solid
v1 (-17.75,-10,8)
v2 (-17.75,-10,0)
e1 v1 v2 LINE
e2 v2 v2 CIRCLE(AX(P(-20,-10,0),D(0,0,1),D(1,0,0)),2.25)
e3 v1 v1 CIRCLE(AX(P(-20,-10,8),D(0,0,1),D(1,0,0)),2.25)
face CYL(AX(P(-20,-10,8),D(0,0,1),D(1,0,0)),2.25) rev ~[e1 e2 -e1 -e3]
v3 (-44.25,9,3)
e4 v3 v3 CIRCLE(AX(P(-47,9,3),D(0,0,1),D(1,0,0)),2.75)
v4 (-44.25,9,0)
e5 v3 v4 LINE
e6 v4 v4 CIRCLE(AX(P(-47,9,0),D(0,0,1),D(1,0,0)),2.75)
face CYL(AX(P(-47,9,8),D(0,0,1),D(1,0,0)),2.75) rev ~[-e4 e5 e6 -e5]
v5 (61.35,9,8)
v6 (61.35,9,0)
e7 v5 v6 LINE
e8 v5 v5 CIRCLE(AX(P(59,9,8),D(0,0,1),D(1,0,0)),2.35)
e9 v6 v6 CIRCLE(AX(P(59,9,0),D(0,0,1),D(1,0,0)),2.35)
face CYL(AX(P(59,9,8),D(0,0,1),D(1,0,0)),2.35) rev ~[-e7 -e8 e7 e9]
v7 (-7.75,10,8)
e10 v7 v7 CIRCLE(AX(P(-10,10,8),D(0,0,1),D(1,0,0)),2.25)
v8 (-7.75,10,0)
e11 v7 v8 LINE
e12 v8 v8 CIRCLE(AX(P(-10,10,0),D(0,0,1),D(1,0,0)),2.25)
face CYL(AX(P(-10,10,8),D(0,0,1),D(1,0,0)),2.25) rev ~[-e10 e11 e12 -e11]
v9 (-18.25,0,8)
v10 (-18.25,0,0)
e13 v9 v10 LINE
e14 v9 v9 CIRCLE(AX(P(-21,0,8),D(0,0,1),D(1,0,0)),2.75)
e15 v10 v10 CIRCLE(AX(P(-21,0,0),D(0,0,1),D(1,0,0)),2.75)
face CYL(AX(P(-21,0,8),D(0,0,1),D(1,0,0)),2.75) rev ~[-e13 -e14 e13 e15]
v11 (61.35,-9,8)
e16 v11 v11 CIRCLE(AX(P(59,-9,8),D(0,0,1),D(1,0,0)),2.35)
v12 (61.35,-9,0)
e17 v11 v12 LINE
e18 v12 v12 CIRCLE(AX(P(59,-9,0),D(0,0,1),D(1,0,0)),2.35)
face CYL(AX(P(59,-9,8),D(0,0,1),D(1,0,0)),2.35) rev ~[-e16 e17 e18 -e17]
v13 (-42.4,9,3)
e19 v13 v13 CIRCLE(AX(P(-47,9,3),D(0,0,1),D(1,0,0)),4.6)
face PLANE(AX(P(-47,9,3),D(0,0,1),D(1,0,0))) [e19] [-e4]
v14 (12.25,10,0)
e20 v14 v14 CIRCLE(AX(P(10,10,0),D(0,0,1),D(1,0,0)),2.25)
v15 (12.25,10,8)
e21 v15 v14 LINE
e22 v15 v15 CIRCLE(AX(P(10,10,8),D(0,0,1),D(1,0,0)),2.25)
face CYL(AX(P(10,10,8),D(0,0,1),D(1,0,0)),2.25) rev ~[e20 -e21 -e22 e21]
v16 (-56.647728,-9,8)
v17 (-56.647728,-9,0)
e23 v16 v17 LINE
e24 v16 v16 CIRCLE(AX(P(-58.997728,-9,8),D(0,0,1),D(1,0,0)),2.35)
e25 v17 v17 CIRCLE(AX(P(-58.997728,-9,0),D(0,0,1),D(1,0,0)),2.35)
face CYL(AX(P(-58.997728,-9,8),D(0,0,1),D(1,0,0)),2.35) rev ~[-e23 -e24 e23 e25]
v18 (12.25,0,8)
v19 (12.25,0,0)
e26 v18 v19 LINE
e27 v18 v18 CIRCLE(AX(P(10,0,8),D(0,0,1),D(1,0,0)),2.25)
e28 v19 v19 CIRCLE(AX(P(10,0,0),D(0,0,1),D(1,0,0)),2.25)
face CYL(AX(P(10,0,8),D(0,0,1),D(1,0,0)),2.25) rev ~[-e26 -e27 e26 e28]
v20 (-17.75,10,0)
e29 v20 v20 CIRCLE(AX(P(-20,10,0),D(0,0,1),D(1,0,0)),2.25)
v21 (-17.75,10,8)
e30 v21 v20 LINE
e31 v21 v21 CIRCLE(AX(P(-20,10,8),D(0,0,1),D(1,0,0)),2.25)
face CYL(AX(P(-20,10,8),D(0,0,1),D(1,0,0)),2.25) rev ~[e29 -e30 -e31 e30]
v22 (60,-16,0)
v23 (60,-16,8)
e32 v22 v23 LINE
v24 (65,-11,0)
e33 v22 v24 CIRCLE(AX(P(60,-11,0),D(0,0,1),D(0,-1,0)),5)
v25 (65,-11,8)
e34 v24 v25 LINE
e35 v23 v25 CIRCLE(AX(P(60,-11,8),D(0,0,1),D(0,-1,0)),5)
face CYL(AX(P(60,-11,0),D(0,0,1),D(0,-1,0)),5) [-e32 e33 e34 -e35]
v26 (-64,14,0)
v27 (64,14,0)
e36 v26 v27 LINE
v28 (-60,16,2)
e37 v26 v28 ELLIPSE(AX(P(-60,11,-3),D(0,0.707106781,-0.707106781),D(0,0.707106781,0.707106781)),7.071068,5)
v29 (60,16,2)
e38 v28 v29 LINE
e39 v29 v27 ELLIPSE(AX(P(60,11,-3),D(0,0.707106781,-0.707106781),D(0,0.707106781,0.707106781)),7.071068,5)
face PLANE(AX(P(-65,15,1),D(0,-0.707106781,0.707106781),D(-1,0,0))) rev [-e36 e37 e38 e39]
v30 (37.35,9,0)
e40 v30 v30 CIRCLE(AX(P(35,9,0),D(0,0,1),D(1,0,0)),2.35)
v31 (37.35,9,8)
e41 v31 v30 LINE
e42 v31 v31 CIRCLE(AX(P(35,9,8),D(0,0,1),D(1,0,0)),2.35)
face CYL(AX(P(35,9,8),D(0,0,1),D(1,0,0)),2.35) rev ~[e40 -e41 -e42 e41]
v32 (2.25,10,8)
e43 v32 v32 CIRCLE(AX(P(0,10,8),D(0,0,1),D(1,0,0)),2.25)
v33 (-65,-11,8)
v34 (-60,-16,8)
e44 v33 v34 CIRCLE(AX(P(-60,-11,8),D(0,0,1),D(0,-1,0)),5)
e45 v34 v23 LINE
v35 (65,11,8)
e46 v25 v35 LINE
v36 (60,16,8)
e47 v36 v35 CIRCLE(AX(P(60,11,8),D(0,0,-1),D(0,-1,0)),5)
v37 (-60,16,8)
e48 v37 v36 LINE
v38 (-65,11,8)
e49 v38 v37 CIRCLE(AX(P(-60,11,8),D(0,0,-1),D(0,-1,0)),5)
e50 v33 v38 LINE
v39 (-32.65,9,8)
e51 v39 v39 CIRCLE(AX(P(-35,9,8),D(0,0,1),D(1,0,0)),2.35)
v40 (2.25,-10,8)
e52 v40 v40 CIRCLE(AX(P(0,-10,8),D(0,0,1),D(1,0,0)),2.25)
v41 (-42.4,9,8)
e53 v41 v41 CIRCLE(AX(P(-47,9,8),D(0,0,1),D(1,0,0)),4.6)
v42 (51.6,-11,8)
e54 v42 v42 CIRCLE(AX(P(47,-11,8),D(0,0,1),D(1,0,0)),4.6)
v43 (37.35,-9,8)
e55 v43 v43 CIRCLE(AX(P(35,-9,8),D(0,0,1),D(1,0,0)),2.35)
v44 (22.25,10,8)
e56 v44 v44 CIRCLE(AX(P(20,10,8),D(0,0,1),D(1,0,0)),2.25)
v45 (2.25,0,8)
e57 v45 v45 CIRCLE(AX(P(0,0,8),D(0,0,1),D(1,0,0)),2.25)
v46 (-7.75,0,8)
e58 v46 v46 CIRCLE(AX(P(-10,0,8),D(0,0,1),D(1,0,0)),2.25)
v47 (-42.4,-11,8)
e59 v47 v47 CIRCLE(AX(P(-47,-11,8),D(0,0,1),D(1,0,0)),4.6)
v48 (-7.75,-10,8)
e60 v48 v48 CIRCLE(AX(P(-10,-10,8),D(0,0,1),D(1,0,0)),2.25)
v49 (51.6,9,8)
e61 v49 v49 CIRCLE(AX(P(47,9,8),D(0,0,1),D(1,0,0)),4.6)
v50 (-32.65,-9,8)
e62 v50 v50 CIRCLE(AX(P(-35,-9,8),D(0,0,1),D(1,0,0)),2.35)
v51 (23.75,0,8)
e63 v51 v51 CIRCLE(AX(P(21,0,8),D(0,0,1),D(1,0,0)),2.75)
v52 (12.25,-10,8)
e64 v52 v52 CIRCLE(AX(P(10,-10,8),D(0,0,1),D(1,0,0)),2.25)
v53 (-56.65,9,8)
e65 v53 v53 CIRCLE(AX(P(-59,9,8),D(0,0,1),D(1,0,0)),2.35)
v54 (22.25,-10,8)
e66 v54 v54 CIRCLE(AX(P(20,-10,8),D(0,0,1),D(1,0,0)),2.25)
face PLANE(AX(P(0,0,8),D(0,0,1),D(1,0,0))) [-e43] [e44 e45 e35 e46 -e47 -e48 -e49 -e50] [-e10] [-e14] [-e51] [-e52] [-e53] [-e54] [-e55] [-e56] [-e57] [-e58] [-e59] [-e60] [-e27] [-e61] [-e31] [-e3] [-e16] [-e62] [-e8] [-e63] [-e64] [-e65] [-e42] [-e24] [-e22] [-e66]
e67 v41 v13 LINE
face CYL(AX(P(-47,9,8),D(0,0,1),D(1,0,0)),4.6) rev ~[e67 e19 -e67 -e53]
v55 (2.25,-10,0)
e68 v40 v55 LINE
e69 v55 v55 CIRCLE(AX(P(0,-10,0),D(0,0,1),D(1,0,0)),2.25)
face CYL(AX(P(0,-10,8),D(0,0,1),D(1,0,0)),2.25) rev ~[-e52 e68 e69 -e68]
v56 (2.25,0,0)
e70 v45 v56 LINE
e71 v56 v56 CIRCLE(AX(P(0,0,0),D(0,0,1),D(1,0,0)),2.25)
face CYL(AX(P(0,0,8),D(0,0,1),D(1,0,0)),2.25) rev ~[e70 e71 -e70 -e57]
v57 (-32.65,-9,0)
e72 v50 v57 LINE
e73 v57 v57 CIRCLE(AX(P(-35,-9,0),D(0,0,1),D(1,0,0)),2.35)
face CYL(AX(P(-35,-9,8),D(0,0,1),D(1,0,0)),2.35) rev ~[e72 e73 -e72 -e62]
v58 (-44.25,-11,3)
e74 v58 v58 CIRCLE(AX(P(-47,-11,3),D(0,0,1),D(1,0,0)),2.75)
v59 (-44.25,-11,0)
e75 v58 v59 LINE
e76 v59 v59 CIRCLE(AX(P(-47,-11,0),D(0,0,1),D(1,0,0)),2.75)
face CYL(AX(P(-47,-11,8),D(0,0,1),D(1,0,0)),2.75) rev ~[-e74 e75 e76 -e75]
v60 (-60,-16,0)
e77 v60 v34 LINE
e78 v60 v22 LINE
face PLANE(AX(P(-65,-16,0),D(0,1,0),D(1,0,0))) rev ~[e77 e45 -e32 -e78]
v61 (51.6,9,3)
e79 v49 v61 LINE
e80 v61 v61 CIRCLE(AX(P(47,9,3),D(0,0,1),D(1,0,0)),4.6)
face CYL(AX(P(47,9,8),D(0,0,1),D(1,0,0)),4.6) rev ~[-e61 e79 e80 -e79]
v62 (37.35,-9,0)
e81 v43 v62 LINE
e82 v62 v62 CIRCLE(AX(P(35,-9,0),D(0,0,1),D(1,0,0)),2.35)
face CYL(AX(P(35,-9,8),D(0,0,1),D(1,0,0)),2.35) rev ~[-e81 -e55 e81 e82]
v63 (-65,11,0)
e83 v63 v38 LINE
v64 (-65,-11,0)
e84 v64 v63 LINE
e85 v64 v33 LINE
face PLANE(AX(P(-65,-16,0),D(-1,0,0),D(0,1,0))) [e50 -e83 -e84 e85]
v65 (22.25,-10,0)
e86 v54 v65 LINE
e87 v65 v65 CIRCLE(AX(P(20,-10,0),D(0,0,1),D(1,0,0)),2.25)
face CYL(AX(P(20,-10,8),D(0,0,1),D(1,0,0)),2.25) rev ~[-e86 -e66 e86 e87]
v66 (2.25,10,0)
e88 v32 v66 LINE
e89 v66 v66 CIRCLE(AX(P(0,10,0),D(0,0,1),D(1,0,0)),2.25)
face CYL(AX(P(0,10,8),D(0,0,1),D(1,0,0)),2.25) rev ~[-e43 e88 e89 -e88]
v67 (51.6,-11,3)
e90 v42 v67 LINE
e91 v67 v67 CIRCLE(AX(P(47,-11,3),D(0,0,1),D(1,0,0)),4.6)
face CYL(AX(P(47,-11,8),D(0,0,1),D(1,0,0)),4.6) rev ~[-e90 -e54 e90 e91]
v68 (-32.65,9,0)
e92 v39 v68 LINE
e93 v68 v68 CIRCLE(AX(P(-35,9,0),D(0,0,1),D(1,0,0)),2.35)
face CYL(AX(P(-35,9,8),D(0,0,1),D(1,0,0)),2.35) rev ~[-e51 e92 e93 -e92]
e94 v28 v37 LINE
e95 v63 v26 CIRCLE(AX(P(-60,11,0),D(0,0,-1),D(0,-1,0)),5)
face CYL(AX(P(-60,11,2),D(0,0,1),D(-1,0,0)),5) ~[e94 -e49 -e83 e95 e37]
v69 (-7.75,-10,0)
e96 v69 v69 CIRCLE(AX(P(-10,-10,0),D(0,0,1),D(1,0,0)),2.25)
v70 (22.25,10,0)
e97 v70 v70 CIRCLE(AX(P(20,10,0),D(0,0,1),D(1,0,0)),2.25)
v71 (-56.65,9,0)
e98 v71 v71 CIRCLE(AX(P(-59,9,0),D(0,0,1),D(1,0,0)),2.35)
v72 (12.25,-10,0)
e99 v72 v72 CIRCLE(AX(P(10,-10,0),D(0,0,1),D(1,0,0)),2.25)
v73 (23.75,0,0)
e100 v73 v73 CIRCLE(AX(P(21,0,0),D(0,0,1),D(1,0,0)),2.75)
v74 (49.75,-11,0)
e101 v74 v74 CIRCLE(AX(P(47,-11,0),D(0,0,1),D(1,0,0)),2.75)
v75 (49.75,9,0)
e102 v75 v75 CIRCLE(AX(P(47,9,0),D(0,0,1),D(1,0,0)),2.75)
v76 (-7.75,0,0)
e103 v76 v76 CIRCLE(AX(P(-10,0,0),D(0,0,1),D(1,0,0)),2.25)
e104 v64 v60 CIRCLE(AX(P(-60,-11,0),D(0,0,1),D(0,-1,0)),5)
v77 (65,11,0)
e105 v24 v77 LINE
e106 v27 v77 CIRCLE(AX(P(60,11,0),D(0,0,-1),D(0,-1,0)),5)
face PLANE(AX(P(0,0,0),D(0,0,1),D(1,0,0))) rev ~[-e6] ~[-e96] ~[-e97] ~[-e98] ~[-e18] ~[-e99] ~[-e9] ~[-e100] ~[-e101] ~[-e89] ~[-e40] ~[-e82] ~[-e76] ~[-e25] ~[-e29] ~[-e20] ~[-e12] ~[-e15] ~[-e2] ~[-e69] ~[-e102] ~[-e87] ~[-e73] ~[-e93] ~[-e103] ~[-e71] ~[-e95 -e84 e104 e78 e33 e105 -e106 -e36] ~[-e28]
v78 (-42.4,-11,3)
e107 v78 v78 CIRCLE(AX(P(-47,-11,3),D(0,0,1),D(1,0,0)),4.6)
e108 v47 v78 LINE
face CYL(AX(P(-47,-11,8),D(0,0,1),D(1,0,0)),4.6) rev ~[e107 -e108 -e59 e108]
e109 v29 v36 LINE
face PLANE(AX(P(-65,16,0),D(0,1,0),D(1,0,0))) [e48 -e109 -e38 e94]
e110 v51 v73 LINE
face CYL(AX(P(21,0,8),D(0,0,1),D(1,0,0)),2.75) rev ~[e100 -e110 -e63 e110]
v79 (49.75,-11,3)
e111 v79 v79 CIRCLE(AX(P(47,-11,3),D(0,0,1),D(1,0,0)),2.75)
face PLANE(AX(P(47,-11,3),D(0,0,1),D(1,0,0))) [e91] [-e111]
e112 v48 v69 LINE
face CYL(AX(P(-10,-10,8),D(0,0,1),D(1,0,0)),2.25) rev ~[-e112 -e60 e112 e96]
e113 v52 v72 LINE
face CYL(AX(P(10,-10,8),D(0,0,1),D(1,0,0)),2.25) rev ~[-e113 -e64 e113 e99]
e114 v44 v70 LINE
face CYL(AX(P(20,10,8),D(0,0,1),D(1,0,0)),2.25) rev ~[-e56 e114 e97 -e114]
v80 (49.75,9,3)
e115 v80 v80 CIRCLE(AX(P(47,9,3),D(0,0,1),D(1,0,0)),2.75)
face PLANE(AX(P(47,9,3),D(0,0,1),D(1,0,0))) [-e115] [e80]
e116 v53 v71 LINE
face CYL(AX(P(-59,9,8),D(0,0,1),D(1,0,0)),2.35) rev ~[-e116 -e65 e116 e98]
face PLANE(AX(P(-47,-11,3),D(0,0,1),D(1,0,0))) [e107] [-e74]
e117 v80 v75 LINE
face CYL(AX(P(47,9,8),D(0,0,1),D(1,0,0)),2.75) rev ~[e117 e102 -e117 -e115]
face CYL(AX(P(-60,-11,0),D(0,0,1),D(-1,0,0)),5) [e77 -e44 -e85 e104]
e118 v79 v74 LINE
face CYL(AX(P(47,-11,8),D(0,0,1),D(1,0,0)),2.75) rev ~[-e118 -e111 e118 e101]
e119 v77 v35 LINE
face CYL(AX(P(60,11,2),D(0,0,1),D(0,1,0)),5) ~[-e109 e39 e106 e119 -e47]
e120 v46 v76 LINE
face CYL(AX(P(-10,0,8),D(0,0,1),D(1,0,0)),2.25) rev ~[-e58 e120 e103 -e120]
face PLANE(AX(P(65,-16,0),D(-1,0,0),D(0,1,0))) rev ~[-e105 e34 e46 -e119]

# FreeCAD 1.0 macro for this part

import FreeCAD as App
import Part
import Sketcher
from FreeCAD import Vector
Q = App.Units.Quantity


def edges_at(feature, points):
    """Names of the edges that pass closest to the given points."""
    edges = feature.Shape.Edges
    near = lambda p: min(range(len(edges)), key=lambda i: edges[i].distToShape(Part.Vertex(*p))[0])
    return sorted({f"Edge{near(p) + 1}" for p in points})

doc = App.newDocument("Part")
body = doc.addObject("PartDesign::Body", "Body")

# Sketch on XY plane
sketch1 = body.newObject("Sketcher::SketchObject", "Sketch")
sketch1.AttachmentSupport = (doc.getObject("XY_Plane"), [""])
sketch1.MapMode = "FlatFace"
sketch1.addGeometry(Part.LineSegment(Vector(-65, 16, 0), Vector(-65, -16, 0)), False)
sketch1.addGeometry(Part.LineSegment(Vector(-65, -16, 0), Vector(65, -16, 0)), False)
sketch1.addGeometry(Part.LineSegment(Vector(65, -16, 0), Vector(65, 16, 0)), False)
sketch1.addGeometry(Part.LineSegment(Vector(65, 16, 0), Vector(-65, 16, 0)), False)
sketch1.addConstraint(Sketcher.Constraint("Coincident", 0, 2, 1, 1))
sketch1.addConstraint(Sketcher.Constraint("Coincident", 1, 2, 2, 1))
sketch1.addConstraint(Sketcher.Constraint("Coincident", 2, 2, 3, 1))
sketch1.addConstraint(Sketcher.Constraint("Coincident", 3, 2, 0, 1))
sketch1.addConstraint(Sketcher.Constraint("Vertical", 0))
sketch1.addConstraint(Sketcher.Constraint("Horizontal", 1))
sketch1.addConstraint(Sketcher.Constraint("Vertical", 2))
sketch1.addConstraint(Sketcher.Constraint("Horizontal", 3))
sketch1.addConstraint(Sketcher.Constraint("Symmetric", 0, 2, 2, 2, -1, 1))
sketch1.addConstraint(Sketcher.Constraint("DistanceX", 1, 1, 1, 2, Q("130 mm")))
sketch1.addConstraint(Sketcher.Constraint("DistanceY", 0, 2, 0, 1, Q("32 mm")))
pad1 = body.newObject("PartDesign::Pad", "Pad")
pad1.Profile = sketch1
pad1.Length = 8

# Sketch on XY plane
sketch2 = body.newObject("Sketcher::SketchObject", "Sketch001")
sketch2.AttachmentSupport = (doc.getObject("XY_Plane"), [""])
sketch2.MapMode = "FlatFace"
sketch2.AttachmentOffset = App.Placement(Vector(0, 0, 8), App.Rotation())
sketch2.addGeometry(Part.Circle(Vector(-35, 9, 0), Vector(0, 0, 1), 2.35), False)
sketch2.addGeometry(Part.Circle(Vector(-58.997728, -9, 0), Vector(0, 0, 1), 2.35), False)
sketch2.addGeometry(Part.Circle(Vector(-59, 9, 0), Vector(0, 0, 1), 2.35), False)
sketch2.addGeometry(Part.Circle(Vector(35, 9, 0), Vector(0, 0, 1), 2.35), False)
sketch2.addGeometry(Part.Circle(Vector(59, -9, 0), Vector(0, 0, 1), 2.35), False)
sketch2.addGeometry(Part.Circle(Vector(59, 9, 0), Vector(0, 0, 1), 2.35), False)
sketch2.addGeometry(Part.Circle(Vector(-47, 9, 0), Vector(0, 0, 1), 2.75), False)
sketch2.addGeometry(Part.Circle(Vector(-47, -11, 0), Vector(0, 0, 1), 2.75), False)
sketch2.addGeometry(Part.Circle(Vector(47, 9, 0), Vector(0, 0, 1), 2.75), False)
sketch2.addGeometry(Part.Circle(Vector(47, -11, 0), Vector(0, 0, 1), 2.75), False)
sketch2.addGeometry(Part.Circle(Vector(-21, 0, 0), Vector(0, 0, 1), 2.75), False)
sketch2.addGeometry(Part.Circle(Vector(21, 0, 0), Vector(0, 0, 1), 2.75), False)
sketch2.addGeometry(Part.Circle(Vector(-35, -9, 0), Vector(0, 0, 1), 2.35), False)
sketch2.addGeometry(Part.Circle(Vector(35, -9, 0), Vector(0, 0, 1), 2.35), False)
sketch2.addConstraint(Sketcher.Constraint("Equal", 0, 1))
sketch2.addConstraint(Sketcher.Constraint("Equal", 1, 2))
sketch2.addConstraint(Sketcher.Constraint("Equal", 2, 3))
sketch2.addConstraint(Sketcher.Constraint("Equal", 3, 4))
sketch2.addConstraint(Sketcher.Constraint("Equal", 4, 5))
sketch2.addConstraint(Sketcher.Constraint("Equal", 6, 7))
sketch2.addConstraint(Sketcher.Constraint("Equal", 7, 8))
sketch2.addConstraint(Sketcher.Constraint("Equal", 8, 9))
sketch2.addConstraint(Sketcher.Constraint("Equal", 9, 10))
sketch2.addConstraint(Sketcher.Constraint("Equal", 10, 11))
sketch2.addConstraint(Sketcher.Constraint("Equal", 5, 12))
sketch2.addConstraint(Sketcher.Constraint("Equal", 12, 13))
sketch2.addConstraint(Sketcher.Constraint("Symmetric", 2, 3, 4, 3, -1, 1))
sketch2.addConstraint(Sketcher.Constraint("Symmetric", 10, 3, 11, 3, -1, 1))
sketch2.addConstraint(Sketcher.Constraint("Symmetric", 3, 3, 12, 3, -1, 1))
sketch2.addConstraint(Sketcher.Constraint("Symmetric", 0, 3, 13, 3, -1, 1))
sketch2.addConstraint(Sketcher.Constraint("Symmetric", 0, 3, 3, 3, -2))
sketch2.addConstraint(Sketcher.Constraint("Symmetric", 2, 3, 5, 3, -2))
sketch2.addConstraint(Sketcher.Constraint("Symmetric", 6, 3, 8, 3, -2))
sketch2.addConstraint(Sketcher.Constraint("Symmetric", 7, 3, 9, 3, -2))
sketch2.addConstraint(Sketcher.Constraint("PointOnObject", 10, 3, -1))
sketch2.addConstraint(Sketcher.Constraint("Horizontal", 0, 3, 2, 3))
sketch2.addConstraint(Sketcher.Constraint("Horizontal", 1, 3, 4, 3))
sketch2.addConstraint(Sketcher.Constraint("Horizontal", 5, 3, 6, 3))
sketch2.addConstraint(Sketcher.Constraint("Vertical", 6, 3, 7, 3))
sketch2.addConstraint(Sketcher.Constraint("Diameter", 0, Q("4.7 mm")))
sketch2.addConstraint(Sketcher.Constraint("Diameter", 6, Q("5.5 mm")))
sketch2.addConstraint(Sketcher.Constraint("DistanceX", 0, 3, -1, 1, Q("35 mm")))
sketch2.addConstraint(Sketcher.Constraint("DistanceY", -1, 1, 0, 3, Q("9 mm")))
sketch2.addConstraint(Sketcher.Constraint("DistanceX", 2, 3, -1, 1, Q("59 mm")))
sketch2.addConstraint(Sketcher.Constraint("DistanceX", 6, 3, -1, 1, Q("47 mm")))
sketch2.addConstraint(Sketcher.Constraint("DistanceY", 7, 3, -1, 1, Q("11 mm")))
sketch2.addConstraint(Sketcher.Constraint("DistanceX", 10, 3, -1, 1, Q("21 mm")))
sketch2.addConstraint(Sketcher.Constraint("DistanceX", 1, 3, -1, 1, Q("58.997728 mm")))
pocket1 = body.newObject("PartDesign::Pocket", "Pocket")
pocket1.Profile = sketch2
pocket1.Type = "ThroughAll"

# Sketch on XY plane
sketch3 = body.newObject("Sketcher::SketchObject", "Sketch002")
sketch3.AttachmentSupport = (doc.getObject("XY_Plane"), [""])
sketch3.MapMode = "FlatFace"
sketch3.AttachmentOffset = App.Placement(Vector(0, 0, 8), App.Rotation())
sketch3.addGeometry(Part.Circle(Vector(-47, 9, 0), Vector(0, 0, 1), 4.6), False)
sketch3.addGeometry(Part.Circle(Vector(47, -11, 0), Vector(0, 0, 1), 4.6), False)
sketch3.addGeometry(Part.Circle(Vector(47, 9, 0), Vector(0, 0, 1), 4.6), False)
sketch3.addGeometry(Part.Circle(Vector(-47, -11, 0), Vector(0, 0, 1), 4.6), False)
sketch3.addConstraint(Sketcher.Constraint("Equal", 0, 1))
sketch3.addConstraint(Sketcher.Constraint("Equal", 1, 2))
sketch3.addConstraint(Sketcher.Constraint("Equal", 2, 3))
sketch3.addConstraint(Sketcher.Constraint("Symmetric", 0, 3, 2, 3, -2))
sketch3.addConstraint(Sketcher.Constraint("Symmetric", 1, 3, 3, 3, -2))
sketch3.addConstraint(Sketcher.Constraint("Vertical", 1, 3, 2, 3))
sketch3.addConstraint(Sketcher.Constraint("Diameter", 0, Q("9.2 mm")))
sketch3.addConstraint(Sketcher.Constraint("DistanceX", 0, 3, -1, 1, Q("47 mm")))
sketch3.addConstraint(Sketcher.Constraint("DistanceY", -1, 1, 0, 3, Q("9 mm")))
sketch3.addConstraint(Sketcher.Constraint("DistanceY", 1, 3, -1, 1, Q("11 mm")))
pocket2 = body.newObject("PartDesign::Pocket", "Pocket001")
pocket2.Profile = sketch3
pocket2.Length = 5

# Sketch on XY plane
sketch4 = body.newObject("Sketcher::SketchObject", "Sketch003")
sketch4.AttachmentSupport = (doc.getObject("XY_Plane"), [""])
sketch4.MapMode = "FlatFace"
sketch4.AttachmentOffset = App.Placement(Vector(0, 0, 8), App.Rotation())
sketch4.addGeometry(Part.Circle(Vector(-10, 10, 0), Vector(0, 0, 1), 2.25), False)
sketch4.addGeometry(Part.Circle(Vector(-10, 0, 0), Vector(0, 0, 1), 2.25), False)
sketch4.addGeometry(Part.Circle(Vector(10, 10, 0), Vector(0, 0, 1), 2.25), False)
sketch4.addGeometry(Part.Circle(Vector(10, 0, 0), Vector(0, 0, 1), 2.25), False)
sketch4.addGeometry(Part.Circle(Vector(0, 10, 0), Vector(0, 0, 1), 2.25), False)
sketch4.addGeometry(Part.Circle(Vector(0, 0, 0), Vector(0, 0, 1), 2.25), False)
sketch4.addGeometry(Part.Circle(Vector(0, -10, 0), Vector(0, 0, 1), 2.25), False)
sketch4.addGeometry(Part.Circle(Vector(-10, -10, 0), Vector(0, 0, 1), 2.25), False)
sketch4.addGeometry(Part.Circle(Vector(10, -10, 0), Vector(0, 0, 1), 2.25), False)
sketch4.addGeometry(Part.Circle(Vector(-20, 10, 0), Vector(0, 0, 1), 2.25), False)
sketch4.addGeometry(Part.Circle(Vector(20, 10, 0), Vector(0, 0, 1), 2.25), False)
sketch4.addGeometry(Part.Circle(Vector(20, -10, 0), Vector(0, 0, 1), 2.25), False)
sketch4.addGeometry(Part.Circle(Vector(-20, -10, 0), Vector(0, 0, 1), 2.25), False)
sketch4.addConstraint(Sketcher.Constraint("Coincident", 5, 3, -1, 1))
sketch4.addConstraint(Sketcher.Constraint("Equal", 0, 1))
sketch4.addConstraint(Sketcher.Constraint("Equal", 1, 2))
sketch4.addConstraint(Sketcher.Constraint("Equal", 2, 3))
sketch4.addConstraint(Sketcher.Constraint("Equal", 3, 4))
sketch4.addConstraint(Sketcher.Constraint("Equal", 4, 5))
sketch4.addConstraint(Sketcher.Constraint("Equal", 5, 6))
sketch4.addConstraint(Sketcher.Constraint("Equal", 6, 7))
sketch4.addConstraint(Sketcher.Constraint("Equal", 7, 8))
sketch4.addConstraint(Sketcher.Constraint("Equal", 8, 9))
sketch4.addConstraint(Sketcher.Constraint("Equal", 9, 10))
sketch4.addConstraint(Sketcher.Constraint("Equal", 10, 11))
sketch4.addConstraint(Sketcher.Constraint("Equal", 11, 12))
sketch4.addConstraint(Sketcher.Constraint("Symmetric", 1, 3, 3, 3, -1, 1))
sketch4.addConstraint(Sketcher.Constraint("Symmetric", 4, 3, 6, 3, -1, 1))
sketch4.addConstraint(Sketcher.Constraint("Symmetric", 2, 3, 7, 3, -1, 1))
sketch4.addConstraint(Sketcher.Constraint("Symmetric", 0, 3, 8, 3, -1, 1))
sketch4.addConstraint(Sketcher.Constraint("Symmetric", 9, 3, 11, 3, -1, 1))
sketch4.addConstraint(Sketcher.Constraint("Symmetric", 10, 3, 12, 3, -1, 1))
sketch4.addConstraint(Sketcher.Constraint("Symmetric", 0, 3, 2, 3, -2))
sketch4.addConstraint(Sketcher.Constraint("Symmetric", 9, 3, 10, 3, -2))
sketch4.addConstraint(Sketcher.Constraint("PointOnObject", 1, 3, -1))
sketch4.addConstraint(Sketcher.Constraint("PointOnObject", 4, 3, -2))
sketch4.addConstraint(Sketcher.Constraint("Horizontal", 2, 3, 4, 3))
sketch4.addConstraint(Sketcher.Constraint("Horizontal", 4, 3, 9, 3))
sketch4.addConstraint(Sketcher.Constraint("Vertical", 0, 3, 1, 3))
sketch4.addConstraint(Sketcher.Constraint("Diameter", 0, Q("4.5 mm")))
sketch4.addConstraint(Sketcher.Constraint("DistanceX", 0, 3, -1, 1, Q("10 mm")))
sketch4.addConstraint(Sketcher.Constraint("DistanceY", -1, 1, 0, 3, Q("10 mm")))
sketch4.addConstraint(Sketcher.Constraint("DistanceX", 9, 3, -1, 1, Q("20 mm")))
pocket3 = body.newObject("PartDesign::Pocket", "Pocket002")
pocket3.Profile = sketch4
pocket3.Type = "ThroughAll"
doc.recompute()

chamfer = body.newObject("PartDesign::Chamfer", "Chamfer")
chamfer.Base = (pocket3, edges_at(pocket3, [(0, 16, 0)]))
chamfer.Size = 2
doc.recompute()

fillet = body.newObject("PartDesign::Fillet", "Fillet")
fillet.Base = (chamfer, edges_at(chamfer, [
    (-65, 16, 5),
    (65, 16, 5),
    (-65, -16, 4),
    (65, -16, 4),
]))
fillet.Radius = 5

doc.recompute()
